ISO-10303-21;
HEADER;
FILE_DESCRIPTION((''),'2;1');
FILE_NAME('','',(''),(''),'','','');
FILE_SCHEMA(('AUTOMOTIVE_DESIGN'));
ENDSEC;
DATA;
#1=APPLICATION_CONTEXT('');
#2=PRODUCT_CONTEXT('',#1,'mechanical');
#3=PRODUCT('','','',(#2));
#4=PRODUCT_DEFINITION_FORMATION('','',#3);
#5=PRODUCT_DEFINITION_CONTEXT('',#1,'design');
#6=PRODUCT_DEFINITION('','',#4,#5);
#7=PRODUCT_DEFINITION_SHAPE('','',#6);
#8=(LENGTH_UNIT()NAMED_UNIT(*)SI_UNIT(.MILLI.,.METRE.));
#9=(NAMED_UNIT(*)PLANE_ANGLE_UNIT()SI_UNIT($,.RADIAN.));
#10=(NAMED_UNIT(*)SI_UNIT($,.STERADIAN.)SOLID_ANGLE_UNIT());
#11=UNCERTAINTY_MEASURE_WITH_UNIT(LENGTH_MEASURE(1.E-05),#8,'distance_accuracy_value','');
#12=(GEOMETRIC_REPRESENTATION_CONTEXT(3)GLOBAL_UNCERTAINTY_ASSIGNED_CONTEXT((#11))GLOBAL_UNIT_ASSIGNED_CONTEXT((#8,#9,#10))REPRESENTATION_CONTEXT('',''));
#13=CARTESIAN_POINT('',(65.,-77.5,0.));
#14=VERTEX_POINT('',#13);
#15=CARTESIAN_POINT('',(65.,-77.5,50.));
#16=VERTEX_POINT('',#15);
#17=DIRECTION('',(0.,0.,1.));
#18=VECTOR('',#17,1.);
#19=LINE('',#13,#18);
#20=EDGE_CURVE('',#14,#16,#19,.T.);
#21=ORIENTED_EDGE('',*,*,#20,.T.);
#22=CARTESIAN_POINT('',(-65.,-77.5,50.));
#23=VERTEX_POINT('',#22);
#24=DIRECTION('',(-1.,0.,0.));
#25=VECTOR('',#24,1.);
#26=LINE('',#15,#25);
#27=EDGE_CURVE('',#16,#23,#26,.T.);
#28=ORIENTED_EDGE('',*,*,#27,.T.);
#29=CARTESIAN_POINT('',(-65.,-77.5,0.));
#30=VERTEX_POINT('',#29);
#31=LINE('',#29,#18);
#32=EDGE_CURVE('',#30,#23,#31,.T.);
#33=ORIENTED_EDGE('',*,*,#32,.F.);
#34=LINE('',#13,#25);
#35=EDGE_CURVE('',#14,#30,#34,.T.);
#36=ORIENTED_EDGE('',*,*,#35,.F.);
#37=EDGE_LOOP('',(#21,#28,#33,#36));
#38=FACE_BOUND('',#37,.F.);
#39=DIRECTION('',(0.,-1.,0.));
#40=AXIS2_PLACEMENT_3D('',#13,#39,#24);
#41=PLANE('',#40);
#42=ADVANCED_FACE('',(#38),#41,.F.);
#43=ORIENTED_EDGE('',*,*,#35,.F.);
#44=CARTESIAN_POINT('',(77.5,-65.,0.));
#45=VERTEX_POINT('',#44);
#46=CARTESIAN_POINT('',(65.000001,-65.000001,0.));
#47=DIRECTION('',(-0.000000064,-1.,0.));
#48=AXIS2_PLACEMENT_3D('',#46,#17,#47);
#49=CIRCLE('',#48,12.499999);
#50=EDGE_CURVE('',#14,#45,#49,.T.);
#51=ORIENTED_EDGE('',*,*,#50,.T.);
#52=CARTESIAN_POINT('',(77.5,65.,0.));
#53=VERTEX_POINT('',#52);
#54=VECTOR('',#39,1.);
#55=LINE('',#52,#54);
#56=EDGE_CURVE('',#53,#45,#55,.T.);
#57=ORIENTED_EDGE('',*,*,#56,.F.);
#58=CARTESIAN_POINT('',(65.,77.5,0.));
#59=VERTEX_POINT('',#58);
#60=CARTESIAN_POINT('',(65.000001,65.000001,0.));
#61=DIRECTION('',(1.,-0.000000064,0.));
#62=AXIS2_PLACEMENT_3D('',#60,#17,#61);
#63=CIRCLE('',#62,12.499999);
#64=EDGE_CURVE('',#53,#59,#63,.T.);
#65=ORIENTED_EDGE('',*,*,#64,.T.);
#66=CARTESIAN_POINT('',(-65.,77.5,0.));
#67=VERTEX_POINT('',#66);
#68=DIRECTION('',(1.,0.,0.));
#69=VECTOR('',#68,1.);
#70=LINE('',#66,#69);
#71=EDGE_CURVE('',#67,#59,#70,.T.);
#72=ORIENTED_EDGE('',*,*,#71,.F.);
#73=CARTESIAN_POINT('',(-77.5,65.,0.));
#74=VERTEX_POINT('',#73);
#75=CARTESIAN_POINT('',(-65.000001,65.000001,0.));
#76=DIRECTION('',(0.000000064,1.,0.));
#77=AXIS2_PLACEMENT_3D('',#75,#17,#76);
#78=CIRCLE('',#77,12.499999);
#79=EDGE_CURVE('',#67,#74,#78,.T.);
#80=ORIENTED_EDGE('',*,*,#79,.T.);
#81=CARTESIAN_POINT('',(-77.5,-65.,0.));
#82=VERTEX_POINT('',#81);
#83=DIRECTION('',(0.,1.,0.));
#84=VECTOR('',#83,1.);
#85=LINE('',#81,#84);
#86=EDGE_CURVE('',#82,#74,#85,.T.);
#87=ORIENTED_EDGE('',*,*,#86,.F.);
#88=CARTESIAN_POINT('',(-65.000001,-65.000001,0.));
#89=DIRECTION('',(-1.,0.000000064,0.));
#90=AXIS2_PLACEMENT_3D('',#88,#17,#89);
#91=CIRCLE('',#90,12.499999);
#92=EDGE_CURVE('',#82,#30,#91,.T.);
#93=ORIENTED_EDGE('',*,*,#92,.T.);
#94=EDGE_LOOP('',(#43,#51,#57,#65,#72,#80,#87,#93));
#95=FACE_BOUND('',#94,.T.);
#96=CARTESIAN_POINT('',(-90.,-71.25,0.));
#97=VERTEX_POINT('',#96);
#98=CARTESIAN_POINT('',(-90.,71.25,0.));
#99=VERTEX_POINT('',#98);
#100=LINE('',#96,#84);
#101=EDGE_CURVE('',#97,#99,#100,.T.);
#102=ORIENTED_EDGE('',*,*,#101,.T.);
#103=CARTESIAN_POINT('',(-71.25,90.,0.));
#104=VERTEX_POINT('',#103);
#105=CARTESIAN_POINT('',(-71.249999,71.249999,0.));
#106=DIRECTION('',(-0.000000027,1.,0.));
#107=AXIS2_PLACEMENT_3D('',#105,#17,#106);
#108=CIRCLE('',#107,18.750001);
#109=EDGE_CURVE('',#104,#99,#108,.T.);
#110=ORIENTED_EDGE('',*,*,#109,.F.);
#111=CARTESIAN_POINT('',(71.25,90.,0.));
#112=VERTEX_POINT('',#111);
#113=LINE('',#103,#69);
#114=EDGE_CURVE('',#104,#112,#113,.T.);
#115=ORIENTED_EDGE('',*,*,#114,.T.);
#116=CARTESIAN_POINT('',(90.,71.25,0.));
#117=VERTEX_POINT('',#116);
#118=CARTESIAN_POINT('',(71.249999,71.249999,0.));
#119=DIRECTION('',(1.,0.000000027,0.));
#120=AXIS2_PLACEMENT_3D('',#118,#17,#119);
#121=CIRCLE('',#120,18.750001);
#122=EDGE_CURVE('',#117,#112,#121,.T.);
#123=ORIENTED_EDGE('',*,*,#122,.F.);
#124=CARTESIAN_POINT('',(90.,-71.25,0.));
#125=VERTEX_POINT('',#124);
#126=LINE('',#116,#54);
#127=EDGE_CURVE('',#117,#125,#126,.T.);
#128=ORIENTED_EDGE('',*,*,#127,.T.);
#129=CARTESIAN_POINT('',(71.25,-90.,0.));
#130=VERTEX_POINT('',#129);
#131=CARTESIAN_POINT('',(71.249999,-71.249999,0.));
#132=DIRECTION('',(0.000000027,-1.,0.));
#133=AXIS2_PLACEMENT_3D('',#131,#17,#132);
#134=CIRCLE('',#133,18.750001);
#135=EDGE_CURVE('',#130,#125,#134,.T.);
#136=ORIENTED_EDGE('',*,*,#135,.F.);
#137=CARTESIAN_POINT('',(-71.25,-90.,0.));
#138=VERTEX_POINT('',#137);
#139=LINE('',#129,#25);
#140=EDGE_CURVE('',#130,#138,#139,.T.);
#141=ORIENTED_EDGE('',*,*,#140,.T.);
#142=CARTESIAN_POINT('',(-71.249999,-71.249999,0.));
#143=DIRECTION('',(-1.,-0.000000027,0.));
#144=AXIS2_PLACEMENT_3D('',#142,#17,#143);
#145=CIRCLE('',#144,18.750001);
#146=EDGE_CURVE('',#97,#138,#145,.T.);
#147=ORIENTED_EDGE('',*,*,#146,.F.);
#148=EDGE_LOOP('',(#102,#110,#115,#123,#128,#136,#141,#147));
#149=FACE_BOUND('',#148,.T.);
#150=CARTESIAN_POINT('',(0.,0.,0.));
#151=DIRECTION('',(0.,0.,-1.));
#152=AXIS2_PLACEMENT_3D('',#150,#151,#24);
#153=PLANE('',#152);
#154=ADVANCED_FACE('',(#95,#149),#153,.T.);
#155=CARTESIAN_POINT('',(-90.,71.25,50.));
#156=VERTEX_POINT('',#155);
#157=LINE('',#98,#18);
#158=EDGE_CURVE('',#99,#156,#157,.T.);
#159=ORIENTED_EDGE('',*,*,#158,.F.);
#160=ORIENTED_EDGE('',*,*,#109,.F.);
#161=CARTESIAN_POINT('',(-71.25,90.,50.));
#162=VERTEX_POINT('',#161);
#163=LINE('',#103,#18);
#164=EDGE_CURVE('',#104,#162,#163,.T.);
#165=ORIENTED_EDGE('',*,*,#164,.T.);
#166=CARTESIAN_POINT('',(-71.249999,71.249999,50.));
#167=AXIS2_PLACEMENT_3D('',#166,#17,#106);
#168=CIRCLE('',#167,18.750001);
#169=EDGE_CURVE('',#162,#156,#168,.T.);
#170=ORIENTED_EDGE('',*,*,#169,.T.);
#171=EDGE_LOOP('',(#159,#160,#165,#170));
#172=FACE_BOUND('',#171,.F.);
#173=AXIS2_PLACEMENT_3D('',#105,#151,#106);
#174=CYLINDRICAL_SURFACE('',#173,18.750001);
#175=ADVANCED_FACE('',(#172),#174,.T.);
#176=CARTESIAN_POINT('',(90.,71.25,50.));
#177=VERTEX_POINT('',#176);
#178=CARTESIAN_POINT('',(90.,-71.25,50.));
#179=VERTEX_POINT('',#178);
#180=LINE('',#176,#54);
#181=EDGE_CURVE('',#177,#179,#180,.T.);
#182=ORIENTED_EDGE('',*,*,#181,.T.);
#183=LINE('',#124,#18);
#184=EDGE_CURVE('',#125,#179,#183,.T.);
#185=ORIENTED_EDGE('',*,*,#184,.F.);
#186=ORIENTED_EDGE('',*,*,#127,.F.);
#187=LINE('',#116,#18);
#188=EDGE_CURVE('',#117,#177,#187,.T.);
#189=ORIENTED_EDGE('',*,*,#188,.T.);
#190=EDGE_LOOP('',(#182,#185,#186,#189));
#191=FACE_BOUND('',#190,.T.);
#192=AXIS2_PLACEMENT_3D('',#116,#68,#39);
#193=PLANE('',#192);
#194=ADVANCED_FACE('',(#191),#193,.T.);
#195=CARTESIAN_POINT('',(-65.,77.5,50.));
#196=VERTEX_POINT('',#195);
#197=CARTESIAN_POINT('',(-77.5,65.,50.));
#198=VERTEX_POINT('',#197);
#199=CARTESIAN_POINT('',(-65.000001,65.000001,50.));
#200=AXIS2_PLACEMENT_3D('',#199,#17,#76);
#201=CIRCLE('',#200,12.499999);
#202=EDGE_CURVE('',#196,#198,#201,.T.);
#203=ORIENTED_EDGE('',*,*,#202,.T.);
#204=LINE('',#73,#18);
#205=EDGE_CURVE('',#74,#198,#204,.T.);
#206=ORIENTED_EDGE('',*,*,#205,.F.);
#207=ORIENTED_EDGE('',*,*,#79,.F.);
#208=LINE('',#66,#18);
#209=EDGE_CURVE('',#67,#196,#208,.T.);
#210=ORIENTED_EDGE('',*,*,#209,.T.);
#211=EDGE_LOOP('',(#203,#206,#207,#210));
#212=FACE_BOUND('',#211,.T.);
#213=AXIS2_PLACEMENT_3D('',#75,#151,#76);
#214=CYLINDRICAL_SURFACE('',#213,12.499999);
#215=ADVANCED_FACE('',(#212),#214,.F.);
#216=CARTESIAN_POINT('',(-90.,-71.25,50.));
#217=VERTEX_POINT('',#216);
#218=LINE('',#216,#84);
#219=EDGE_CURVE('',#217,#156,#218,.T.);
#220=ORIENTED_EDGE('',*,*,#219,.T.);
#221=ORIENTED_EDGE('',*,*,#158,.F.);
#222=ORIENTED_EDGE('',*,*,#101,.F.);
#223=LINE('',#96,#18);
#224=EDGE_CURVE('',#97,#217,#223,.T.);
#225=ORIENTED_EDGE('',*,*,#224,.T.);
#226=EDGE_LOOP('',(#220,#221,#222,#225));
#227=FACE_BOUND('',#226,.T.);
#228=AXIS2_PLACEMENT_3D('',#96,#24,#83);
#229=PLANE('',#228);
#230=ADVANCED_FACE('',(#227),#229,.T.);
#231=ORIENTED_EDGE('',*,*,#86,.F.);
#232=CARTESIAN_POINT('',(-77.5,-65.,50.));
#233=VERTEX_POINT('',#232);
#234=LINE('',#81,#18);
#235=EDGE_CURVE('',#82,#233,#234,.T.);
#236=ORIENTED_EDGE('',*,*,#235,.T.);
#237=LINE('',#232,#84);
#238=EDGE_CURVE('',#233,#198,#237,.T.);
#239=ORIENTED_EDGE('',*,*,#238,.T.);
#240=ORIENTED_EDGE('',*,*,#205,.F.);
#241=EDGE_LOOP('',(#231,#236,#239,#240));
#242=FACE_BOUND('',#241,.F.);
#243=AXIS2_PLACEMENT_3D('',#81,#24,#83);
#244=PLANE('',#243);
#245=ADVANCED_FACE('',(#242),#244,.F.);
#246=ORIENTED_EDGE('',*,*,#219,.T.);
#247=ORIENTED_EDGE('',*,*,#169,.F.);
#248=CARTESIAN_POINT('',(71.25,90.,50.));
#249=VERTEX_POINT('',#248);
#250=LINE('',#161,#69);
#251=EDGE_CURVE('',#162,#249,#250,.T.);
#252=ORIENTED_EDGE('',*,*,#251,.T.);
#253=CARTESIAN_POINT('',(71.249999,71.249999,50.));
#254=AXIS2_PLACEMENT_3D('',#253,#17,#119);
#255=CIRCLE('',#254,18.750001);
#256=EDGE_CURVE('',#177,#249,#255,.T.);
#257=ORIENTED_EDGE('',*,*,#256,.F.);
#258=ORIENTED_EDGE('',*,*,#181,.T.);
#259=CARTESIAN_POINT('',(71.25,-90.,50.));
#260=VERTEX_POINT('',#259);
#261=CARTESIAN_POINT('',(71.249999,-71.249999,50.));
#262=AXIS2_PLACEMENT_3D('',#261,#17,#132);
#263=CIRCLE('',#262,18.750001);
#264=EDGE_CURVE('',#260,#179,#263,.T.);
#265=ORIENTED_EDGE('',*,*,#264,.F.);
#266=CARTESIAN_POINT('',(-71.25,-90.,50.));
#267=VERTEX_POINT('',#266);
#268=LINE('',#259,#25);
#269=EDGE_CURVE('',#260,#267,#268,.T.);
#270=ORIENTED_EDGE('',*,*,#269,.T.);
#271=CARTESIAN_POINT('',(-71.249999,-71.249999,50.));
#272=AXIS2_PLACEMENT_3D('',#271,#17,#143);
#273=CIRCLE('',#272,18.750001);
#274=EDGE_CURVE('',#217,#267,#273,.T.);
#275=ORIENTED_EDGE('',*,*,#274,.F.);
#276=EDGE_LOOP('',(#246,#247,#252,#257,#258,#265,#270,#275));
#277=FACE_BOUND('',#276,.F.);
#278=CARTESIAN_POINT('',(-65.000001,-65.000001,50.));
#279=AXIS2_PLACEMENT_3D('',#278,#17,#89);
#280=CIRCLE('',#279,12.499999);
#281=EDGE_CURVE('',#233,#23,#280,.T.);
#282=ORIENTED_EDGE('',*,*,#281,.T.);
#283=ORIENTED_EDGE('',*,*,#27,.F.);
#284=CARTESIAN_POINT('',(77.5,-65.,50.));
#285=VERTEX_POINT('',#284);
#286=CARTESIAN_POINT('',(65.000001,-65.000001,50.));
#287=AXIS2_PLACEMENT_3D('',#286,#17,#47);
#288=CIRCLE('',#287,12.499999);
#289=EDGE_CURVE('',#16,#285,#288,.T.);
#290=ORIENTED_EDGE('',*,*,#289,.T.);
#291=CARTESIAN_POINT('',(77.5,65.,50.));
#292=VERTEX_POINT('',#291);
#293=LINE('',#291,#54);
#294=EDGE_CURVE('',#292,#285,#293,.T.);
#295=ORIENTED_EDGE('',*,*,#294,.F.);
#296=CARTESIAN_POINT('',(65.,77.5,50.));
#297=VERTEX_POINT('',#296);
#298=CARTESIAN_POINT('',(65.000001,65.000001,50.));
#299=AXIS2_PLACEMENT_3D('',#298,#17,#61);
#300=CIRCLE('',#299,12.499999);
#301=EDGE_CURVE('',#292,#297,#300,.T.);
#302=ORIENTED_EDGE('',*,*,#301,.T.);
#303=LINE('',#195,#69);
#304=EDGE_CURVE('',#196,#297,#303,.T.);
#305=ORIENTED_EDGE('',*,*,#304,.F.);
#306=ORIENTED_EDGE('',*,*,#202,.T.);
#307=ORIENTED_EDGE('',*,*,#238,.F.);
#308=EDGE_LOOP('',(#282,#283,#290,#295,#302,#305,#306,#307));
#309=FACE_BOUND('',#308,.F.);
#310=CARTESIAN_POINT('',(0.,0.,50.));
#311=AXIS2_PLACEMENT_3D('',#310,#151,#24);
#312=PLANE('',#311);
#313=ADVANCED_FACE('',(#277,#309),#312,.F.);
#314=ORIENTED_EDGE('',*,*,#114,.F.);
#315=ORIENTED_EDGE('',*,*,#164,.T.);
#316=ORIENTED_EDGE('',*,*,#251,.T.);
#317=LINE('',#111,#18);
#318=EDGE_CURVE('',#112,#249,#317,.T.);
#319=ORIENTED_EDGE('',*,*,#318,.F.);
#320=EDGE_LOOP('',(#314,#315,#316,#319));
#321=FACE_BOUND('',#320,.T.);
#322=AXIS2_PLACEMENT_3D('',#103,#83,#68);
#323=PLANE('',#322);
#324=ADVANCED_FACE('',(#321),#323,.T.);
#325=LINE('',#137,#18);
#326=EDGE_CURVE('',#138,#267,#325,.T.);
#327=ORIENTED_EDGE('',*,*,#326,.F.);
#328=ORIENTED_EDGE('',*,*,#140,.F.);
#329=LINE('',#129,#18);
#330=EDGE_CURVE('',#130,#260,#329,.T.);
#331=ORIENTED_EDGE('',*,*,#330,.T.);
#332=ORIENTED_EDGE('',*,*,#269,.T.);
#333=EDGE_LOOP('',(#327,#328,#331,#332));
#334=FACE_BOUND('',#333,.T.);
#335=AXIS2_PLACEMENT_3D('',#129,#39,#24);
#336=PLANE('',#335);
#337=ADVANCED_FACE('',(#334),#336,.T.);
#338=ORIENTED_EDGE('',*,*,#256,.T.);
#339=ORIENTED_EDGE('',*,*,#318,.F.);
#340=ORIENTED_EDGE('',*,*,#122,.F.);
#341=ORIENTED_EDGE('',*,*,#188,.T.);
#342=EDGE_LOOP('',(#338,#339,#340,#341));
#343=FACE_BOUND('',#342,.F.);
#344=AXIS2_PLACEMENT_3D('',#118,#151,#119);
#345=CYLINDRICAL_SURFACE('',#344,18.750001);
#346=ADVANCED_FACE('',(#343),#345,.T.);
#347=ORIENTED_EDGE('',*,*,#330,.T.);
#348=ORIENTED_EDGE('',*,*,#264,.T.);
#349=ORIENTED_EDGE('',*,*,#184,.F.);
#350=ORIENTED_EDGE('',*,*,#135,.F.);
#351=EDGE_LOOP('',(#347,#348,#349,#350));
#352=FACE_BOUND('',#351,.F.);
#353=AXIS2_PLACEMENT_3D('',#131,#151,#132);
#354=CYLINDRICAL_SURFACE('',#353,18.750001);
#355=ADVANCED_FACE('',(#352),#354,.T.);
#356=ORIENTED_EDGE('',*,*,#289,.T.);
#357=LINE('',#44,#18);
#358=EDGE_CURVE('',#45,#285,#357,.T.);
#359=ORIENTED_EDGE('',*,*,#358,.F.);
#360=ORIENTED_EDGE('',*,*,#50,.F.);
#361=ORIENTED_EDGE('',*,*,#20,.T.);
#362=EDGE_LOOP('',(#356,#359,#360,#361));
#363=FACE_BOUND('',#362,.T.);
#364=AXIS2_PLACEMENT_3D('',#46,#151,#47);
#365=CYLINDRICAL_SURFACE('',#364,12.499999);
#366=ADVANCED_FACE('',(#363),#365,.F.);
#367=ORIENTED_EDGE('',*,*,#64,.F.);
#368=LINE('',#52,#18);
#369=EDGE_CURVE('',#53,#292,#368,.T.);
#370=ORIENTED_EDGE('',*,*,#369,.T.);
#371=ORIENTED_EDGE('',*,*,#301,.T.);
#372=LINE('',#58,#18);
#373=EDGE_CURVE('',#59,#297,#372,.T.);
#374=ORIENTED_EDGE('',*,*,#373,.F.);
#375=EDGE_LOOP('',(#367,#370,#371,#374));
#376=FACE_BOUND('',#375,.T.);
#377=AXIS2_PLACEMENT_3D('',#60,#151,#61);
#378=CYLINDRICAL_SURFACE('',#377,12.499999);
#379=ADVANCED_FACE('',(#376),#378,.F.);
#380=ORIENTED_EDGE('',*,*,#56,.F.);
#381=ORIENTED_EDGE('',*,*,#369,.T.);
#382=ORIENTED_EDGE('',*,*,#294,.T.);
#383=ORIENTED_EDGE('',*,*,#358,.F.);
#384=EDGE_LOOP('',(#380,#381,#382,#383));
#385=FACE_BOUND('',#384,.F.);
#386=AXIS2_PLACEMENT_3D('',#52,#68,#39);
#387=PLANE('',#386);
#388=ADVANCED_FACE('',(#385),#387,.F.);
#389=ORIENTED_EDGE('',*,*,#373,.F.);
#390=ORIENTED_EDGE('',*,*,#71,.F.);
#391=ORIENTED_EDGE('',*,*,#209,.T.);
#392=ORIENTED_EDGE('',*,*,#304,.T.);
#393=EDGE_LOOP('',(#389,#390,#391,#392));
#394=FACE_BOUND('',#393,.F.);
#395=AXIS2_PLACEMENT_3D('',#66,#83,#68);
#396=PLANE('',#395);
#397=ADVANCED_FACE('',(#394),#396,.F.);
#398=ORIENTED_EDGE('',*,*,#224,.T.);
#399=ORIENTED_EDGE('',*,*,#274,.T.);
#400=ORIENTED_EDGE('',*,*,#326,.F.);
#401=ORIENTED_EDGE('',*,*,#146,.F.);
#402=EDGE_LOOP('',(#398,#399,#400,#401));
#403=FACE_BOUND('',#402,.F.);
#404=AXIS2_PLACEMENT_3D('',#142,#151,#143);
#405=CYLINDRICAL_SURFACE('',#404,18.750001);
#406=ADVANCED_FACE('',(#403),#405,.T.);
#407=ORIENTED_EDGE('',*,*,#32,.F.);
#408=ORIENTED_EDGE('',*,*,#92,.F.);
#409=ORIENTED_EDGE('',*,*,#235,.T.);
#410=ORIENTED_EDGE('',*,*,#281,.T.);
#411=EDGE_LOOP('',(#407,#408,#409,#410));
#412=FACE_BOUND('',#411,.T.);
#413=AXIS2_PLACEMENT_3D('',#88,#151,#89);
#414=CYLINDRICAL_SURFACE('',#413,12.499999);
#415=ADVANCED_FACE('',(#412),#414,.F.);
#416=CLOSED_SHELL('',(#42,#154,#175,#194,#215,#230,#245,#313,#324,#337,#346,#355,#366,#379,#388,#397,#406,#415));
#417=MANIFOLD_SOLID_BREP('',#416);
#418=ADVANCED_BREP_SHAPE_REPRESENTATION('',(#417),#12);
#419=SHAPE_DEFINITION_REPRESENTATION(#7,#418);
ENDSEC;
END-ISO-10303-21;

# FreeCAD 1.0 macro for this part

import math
import FreeCAD as App
import Part
import Sketcher

V = App.Vector
Q = App.Units.Quantity

doc = App.newDocument("Part")
body = doc.addObject("PartDesign::Body", "Body")

# Sketch on XY plane
sketch1 = body.newObject("Sketcher::SketchObject", "Sketch")
sketch1.AttachmentSupport = (doc.getObject("XY_Plane"), [""])
sketch1.MapMode = "FlatFace"
sketch1.addGeometry([
    Part.LineSegment(V(71, 90, 0), V(-71, 90, 0)),  # 0
    Part.ArcOfCircle(Part.Circle(V(-71, 71, 0), V(0, 0, 1), 19), math.radians(90), math.radians(180)),  # 1
    Part.LineSegment(V(-90, 71, 0), V(-90, -71, 0)),  # 2
    Part.ArcOfCircle(Part.Circle(V(-71, -71, 0), V(0, 0, 1), 19), math.radians(-180), math.radians(-90)),  # 3
    Part.LineSegment(V(-71, -90, 0), V(71, -90, 0)),  # 4
    Part.ArcOfCircle(Part.Circle(V(71, -71, 0), V(0, 0, 1), 19), math.radians(-90), math.radians(0)),  # 5
    Part.LineSegment(V(90, -71, 0), V(90, 71, 0)),  # 6
    Part.ArcOfCircle(Part.Circle(V(71, 71, 0), V(0, 0, 1), 19), math.radians(0), math.radians(90)),  # 7
    Part.LineSegment(V(-65, 78, 0), V(65, 78, 0)),  # 8
    Part.ArcOfCircle(Part.Circle(V(65, 65, 0), V(0, 0, 1), 12), math.radians(0), math.radians(90)),  # 9
    Part.LineSegment(V(78, 65, 0), V(78, -65, 0)),  # 10
    Part.ArcOfCircle(Part.Circle(V(65, -65, 0), V(0, 0, 1), 12), math.radians(-90), math.radians(0)),  # 11
    Part.LineSegment(V(65, -78, 0), V(-65, -78, 0)),  # 12
    Part.ArcOfCircle(Part.Circle(V(-65, -65, 0), V(0, 0, 1), 12), math.radians(180), math.radians(270)),  # 13
    Part.LineSegment(V(-78, -65, 0), V(-78, 65, 0)),  # 14
    Part.ArcOfCircle(Part.Circle(V(-65, 65, 0), V(0, 0, 1), 12), math.radians(90), math.radians(180)),  # 15
], False)
sketch1.addConstraint([
    Sketcher.Constraint("Tangent", 0, 2, 1, 1),
    Sketcher.Constraint("Tangent", 1, 2, 2, 1),
    Sketcher.Constraint("Tangent", 2, 2, 3, 1),
    Sketcher.Constraint("Tangent", 3, 2, 4, 1),
    Sketcher.Constraint("Tangent", 4, 2, 5, 1),
    Sketcher.Constraint("Tangent", 5, 2, 6, 1),
    Sketcher.Constraint("Tangent", 6, 2, 7, 1),
    Sketcher.Constraint("Tangent", 7, 2, 0, 1),
    Sketcher.Constraint("Tangent", 8, 2, 9, 2),
    Sketcher.Constraint("Tangent", 9, 1, 10, 1),
    Sketcher.Constraint("Tangent", 10, 2, 11, 2),
    Sketcher.Constraint("Tangent", 11, 1, 12, 1),
    Sketcher.Constraint("Tangent", 12, 2, 13, 2),
    Sketcher.Constraint("Tangent", 13, 1, 14, 1),
    Sketcher.Constraint("Tangent", 14, 2, 15, 2),
    Sketcher.Constraint("Tangent", 15, 1, 8, 1),
    Sketcher.Constraint("Horizontal", 0),
    Sketcher.Constraint("Vertical", 2),
    Sketcher.Constraint("Horizontal", 4),
    Sketcher.Constraint("Vertical", 6),
    Sketcher.Constraint("Horizontal", 8),
    Sketcher.Constraint("Vertical", 10),
    Sketcher.Constraint("Horizontal", 12),
    Sketcher.Constraint("Vertical", 14),
    Sketcher.Constraint("Equal", 1, 3),
    Sketcher.Constraint("Equal", 3, 5),
    Sketcher.Constraint("Equal", 5, 7),
    Sketcher.Constraint("Equal", 9, 11),
    Sketcher.Constraint("Equal", 11, 13),
    Sketcher.Constraint("Equal", 13, 15),
    Sketcher.Constraint("Symmetric", 1, 3, 5, 3, -1, 1),
    Sketcher.Constraint("Symmetric", 9, 3, 13, 3, -1, 1),
    Sketcher.Constraint("Equal", 4, 2),
    Sketcher.Constraint("Equal", 12, 10),
    Sketcher.Constraint("Radius", 9, Q("12.499999 mm")),
    Sketcher.Constraint("DistanceX", 8, 1, 8, 2, Q("130 mm")),
    Sketcher.Constraint("Radius", 1, Q("18.750001 mm")),
    Sketcher.Constraint("DistanceX", 0, 2, 0, 1, Q("142.5 mm")),
])
pad1 = body.newObject("PartDesign::Pad", "Pad")
pad1.Profile = sketch1
pad1.Length = 50

doc.recompute()
